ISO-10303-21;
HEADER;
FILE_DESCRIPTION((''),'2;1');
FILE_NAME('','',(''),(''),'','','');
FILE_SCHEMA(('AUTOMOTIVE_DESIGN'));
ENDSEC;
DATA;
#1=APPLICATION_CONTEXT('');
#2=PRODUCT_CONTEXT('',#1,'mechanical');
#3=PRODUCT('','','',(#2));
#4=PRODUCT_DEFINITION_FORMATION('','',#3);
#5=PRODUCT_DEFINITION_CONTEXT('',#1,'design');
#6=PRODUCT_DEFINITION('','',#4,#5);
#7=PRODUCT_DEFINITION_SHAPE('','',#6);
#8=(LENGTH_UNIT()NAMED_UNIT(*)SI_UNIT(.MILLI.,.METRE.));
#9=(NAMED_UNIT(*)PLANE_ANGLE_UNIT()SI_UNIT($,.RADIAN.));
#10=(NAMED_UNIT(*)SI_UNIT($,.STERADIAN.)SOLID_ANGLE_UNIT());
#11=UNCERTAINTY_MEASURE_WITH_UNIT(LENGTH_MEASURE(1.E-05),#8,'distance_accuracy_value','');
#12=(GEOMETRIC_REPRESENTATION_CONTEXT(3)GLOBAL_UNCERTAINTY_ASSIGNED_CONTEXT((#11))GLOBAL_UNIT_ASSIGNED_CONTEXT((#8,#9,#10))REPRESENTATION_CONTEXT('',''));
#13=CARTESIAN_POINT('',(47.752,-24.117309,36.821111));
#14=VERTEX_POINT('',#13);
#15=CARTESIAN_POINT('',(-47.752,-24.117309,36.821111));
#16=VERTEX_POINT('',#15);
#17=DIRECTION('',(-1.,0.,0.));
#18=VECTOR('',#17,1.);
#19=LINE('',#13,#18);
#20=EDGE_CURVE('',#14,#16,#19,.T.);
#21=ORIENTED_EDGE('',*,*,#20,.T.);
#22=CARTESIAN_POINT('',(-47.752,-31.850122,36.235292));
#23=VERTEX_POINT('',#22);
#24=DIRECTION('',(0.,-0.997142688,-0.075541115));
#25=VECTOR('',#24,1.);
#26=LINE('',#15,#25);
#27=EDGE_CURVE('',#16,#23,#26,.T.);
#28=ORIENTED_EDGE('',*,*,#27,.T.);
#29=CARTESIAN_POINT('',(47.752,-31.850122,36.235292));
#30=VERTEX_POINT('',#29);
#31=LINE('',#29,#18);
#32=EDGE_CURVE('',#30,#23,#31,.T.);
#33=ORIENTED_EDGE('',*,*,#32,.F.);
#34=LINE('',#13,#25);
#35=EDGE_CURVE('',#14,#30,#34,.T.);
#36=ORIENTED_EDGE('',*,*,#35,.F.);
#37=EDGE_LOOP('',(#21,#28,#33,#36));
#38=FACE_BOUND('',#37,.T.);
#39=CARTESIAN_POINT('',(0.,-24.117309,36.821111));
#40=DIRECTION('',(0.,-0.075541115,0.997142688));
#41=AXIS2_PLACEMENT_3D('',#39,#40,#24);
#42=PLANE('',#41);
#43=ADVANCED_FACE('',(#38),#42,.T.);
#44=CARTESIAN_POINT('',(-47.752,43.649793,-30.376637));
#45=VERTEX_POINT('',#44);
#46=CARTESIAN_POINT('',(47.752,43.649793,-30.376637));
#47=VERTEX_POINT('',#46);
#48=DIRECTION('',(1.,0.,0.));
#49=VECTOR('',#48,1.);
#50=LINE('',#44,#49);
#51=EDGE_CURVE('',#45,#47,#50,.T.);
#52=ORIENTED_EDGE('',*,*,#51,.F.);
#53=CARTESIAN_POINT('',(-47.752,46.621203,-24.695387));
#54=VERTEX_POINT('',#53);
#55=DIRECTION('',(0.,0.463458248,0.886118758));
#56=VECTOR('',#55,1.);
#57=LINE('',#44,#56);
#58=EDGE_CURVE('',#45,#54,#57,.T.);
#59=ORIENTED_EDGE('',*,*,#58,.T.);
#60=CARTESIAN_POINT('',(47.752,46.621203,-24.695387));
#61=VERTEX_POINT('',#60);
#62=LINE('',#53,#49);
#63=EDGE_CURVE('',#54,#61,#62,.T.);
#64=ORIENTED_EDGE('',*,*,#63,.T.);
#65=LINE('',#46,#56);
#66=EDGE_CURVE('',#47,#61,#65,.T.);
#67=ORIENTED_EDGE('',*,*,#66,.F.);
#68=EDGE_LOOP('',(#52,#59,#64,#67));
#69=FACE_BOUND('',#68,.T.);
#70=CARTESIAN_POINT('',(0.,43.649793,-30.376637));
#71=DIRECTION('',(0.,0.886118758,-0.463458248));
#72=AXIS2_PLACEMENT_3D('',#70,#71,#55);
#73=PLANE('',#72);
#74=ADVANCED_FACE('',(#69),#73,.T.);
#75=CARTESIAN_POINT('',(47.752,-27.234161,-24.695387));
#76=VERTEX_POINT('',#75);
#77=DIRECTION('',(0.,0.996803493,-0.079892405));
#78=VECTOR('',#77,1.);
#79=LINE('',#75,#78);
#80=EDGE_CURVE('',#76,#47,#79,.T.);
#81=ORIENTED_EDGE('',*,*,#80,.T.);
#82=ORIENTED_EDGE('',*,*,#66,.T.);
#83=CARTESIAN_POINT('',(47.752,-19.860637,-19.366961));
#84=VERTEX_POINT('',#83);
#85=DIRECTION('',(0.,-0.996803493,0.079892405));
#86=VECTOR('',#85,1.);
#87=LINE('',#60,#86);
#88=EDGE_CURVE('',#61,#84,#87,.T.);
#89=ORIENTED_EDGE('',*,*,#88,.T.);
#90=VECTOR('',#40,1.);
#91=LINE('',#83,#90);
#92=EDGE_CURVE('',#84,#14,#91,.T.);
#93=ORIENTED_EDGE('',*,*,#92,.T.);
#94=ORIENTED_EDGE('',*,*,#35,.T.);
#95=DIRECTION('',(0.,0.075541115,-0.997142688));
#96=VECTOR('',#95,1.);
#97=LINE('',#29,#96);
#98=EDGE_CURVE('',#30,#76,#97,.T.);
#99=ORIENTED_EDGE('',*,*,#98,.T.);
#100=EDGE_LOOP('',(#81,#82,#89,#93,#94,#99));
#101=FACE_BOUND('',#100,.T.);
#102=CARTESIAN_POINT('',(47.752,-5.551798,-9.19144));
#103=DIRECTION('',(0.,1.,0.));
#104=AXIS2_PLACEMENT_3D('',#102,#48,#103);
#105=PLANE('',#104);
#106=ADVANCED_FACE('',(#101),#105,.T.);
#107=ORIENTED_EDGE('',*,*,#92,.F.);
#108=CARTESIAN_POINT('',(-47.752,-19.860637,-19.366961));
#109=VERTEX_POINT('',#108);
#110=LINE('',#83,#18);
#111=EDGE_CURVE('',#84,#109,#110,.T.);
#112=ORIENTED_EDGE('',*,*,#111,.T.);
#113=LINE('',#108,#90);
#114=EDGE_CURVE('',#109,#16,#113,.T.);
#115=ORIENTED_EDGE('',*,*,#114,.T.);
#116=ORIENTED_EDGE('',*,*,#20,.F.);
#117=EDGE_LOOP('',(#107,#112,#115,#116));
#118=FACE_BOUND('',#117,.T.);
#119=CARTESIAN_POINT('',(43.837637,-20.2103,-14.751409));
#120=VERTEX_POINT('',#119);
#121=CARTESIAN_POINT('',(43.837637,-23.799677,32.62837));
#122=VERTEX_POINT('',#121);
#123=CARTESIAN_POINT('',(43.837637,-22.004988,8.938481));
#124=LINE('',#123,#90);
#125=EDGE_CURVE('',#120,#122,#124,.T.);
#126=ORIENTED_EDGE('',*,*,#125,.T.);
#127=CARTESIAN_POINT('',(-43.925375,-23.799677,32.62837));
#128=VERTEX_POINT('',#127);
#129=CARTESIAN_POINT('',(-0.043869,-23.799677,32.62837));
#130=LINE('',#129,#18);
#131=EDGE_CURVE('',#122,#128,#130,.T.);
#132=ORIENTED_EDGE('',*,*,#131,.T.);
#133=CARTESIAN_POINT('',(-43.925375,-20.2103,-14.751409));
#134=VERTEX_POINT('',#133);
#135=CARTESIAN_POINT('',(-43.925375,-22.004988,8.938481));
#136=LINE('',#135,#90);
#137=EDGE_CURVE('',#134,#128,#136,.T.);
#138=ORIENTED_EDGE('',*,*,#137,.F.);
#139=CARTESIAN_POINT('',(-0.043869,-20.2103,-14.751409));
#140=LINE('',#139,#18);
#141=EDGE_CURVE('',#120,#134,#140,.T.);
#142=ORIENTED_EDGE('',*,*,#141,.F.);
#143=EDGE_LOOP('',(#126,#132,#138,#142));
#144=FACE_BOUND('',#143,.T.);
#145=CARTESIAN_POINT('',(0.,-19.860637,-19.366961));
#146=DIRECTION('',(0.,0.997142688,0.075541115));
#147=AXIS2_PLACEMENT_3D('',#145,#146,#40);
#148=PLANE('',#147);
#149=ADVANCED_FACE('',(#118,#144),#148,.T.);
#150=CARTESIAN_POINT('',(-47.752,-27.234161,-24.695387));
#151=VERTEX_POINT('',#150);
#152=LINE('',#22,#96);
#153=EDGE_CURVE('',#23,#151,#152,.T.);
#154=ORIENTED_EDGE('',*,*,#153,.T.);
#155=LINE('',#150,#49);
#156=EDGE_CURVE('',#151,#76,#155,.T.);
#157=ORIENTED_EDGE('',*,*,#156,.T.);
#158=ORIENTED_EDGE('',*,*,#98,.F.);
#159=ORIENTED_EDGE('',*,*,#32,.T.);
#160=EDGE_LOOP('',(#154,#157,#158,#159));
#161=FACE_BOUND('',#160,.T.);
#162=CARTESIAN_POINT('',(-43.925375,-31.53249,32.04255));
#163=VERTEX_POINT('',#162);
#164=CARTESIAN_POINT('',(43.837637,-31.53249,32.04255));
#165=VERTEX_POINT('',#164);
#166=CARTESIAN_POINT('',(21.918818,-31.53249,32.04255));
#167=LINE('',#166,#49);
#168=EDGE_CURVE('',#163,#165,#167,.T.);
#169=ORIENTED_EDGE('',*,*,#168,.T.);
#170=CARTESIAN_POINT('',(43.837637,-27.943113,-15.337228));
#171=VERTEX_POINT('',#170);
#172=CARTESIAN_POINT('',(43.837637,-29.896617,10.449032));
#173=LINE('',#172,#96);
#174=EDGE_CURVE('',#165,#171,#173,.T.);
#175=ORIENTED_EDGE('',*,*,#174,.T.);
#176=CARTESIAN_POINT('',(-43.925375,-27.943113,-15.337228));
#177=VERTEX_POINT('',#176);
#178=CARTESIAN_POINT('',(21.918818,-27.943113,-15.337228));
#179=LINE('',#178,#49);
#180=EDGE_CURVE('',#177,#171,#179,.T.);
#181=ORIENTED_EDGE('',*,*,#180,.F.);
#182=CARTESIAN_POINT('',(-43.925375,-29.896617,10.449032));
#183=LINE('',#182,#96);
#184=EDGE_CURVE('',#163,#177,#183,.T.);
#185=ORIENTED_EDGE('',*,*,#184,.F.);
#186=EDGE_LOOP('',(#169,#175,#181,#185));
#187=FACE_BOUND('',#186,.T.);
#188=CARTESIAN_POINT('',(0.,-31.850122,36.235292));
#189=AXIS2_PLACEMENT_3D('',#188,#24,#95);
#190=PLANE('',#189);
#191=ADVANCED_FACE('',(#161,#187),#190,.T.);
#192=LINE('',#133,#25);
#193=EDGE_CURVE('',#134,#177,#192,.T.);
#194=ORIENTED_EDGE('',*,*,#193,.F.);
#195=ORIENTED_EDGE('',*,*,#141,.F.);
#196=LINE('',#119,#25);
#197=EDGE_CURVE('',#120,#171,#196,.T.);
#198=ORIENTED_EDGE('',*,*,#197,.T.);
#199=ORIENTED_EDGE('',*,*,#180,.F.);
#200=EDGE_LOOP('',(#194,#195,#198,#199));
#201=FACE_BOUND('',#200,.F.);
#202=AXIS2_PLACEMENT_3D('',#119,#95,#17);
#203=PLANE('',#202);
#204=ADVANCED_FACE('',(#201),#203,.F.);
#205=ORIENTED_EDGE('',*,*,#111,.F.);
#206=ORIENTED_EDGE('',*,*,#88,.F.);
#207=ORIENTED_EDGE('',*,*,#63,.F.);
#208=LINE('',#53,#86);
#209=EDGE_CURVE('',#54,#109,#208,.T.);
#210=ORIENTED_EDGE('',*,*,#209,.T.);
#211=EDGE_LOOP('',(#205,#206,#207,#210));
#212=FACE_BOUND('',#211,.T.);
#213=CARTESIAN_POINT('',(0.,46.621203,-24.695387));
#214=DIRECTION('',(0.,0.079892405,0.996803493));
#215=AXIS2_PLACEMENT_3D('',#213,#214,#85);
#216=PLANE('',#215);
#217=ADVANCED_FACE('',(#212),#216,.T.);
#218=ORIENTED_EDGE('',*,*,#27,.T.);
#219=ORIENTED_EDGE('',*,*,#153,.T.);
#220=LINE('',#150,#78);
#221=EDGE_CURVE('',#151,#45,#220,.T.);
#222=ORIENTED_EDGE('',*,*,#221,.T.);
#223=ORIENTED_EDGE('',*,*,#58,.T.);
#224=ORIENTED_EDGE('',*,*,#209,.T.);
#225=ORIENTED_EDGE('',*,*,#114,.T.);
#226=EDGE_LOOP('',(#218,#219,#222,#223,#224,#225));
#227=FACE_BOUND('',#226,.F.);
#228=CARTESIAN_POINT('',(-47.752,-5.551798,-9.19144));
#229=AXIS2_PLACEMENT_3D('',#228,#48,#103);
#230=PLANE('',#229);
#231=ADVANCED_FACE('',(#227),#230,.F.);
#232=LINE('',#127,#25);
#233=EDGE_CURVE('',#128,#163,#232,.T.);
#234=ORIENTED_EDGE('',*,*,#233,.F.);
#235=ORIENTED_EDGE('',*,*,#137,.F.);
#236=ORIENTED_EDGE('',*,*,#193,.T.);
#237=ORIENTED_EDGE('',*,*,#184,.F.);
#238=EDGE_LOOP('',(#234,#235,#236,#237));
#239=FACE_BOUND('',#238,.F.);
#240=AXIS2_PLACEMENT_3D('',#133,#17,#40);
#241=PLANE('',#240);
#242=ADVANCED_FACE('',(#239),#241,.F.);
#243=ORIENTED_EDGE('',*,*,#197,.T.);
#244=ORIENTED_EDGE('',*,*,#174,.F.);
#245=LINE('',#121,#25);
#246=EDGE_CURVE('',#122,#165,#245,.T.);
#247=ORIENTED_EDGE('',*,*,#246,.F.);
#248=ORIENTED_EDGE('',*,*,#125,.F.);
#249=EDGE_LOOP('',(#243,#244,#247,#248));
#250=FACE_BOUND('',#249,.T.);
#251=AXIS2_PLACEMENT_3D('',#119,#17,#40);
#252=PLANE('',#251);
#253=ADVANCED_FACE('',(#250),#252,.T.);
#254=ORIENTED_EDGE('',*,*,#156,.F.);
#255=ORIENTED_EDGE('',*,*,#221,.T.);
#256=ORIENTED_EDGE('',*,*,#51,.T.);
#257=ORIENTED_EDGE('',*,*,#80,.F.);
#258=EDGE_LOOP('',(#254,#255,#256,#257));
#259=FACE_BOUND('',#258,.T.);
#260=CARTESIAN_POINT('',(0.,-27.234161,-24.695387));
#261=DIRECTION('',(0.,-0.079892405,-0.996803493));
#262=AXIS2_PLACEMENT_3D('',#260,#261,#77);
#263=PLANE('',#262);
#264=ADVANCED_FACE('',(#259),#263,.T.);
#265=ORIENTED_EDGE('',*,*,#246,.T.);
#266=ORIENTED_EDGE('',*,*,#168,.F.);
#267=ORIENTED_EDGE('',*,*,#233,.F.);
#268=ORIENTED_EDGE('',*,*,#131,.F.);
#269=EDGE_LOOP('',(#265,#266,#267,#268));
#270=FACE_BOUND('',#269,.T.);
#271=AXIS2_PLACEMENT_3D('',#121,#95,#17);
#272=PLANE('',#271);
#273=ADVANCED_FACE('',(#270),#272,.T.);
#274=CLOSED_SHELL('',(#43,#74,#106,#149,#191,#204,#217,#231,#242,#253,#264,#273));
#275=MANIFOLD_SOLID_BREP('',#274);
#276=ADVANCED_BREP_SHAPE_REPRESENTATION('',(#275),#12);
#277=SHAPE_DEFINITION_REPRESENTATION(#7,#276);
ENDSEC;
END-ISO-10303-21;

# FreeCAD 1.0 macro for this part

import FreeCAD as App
import Part
import Sketcher

V = App.Vector
Q = App.Units.Quantity


def add_polygon(sketch, points):
    """Adds a closed chain of lines whose ends are joined by coincident constraints."""
    first, n = sketch.GeometryCount, len(points)
    for a, b in zip(points, points[1:] + points[:1]):
        sketch.addGeometry(Part.LineSegment(App.Vector(*a, 0), App.Vector(*b, 0)), False)
    for i in range(n):
        sketch.addConstraint(Sketcher.Constraint("Coincident", first + i, 2, first + (i + 1) % n, 1))

doc = App.newDocument("Part")
body = doc.addObject("PartDesign::Body", "Body")

sketch1 = body.newObject("Sketcher::SketchObject", "Sketch")
sketch1.AttachmentSupport = (doc.getObject("YZ_Plane"), [""])
sketch1.MapMode = "FlatFace"
add_polygon(sketch1, [(-31.850122, 36.235292), (-27.234161, -24.695387), (43.649793, -30.376637), (46.621203, -24.695387), (-19.860637, -19.366961), (-24.117309, 36.821111)])
sketch1.addConstraint([
    Sketcher.Constraint("Distance", 3, 66.695031),
    Sketcher.Constraint("Distance", 4, 56.349078),
    Sketcher.Constraint("Distance", 5, 7.754971),
    Sketcher.Constraint("DistanceX", 0, 2, -1, 1, 27.234161),
    Sketcher.Constraint("DistanceY", 3, 2, -1, 1, 19.366961),
    Sketcher.Constraint("DistanceX", 4, 2, -1, 1, 24.117309),
    Sketcher.Constraint("DistanceY", -1, 1, 4, 2, 36.821111),
    Sketcher.Constraint("DistanceX", 5, 2, -1, 1, 31.850122),
    Sketcher.Constraint("DistanceY", 1, 2, 0, 2, 5.68125),
    Sketcher.Constraint("DistanceX", 1, 2, 2, 2, 2.97141),
    Sketcher.Constraint("DistanceY", 1, 2, 2, 2, 5.68125),
    Sketcher.Constraint("DistanceX", 3, 2, 1, 2, 63.51043),
])
pad1 = body.newObject("PartDesign::Pad", "Pad")
pad1.Profile = sketch1
pad1.Length = Q("3.76 in")
pad1.Midplane = True

sketch2 = body.newObject("Sketcher::SketchObject", "Sketch001")
sketch2.Placement = App.Placement(V(0, -21.206124, -1.606525), App.Rotation(V(-1, 0, 0), V(0, -0.075541115, 0.997142688), V(0, 0.997142688, 0.075541115), "ZXY"))
add_polygon(sketch2, [(-44, 34), (-44, -13), (44, -13), (44, 34)])
sketch2.addConstraint([
    Sketcher.Constraint("Vertical", 0),
    Sketcher.Constraint("Horizontal", 1),
    Sketcher.Constraint("Vertical", 2),
    Sketcher.Constraint("Horizontal", 3),
    Sketcher.Constraint("DistanceX", 1, 1, 1, 2, 87.763011),
    Sketcher.Constraint("DistanceY", 0, 2, 0, 1, 47.515545),
    Sketcher.Constraint("DistanceY", 0, 2, -1, 1, 13.182551),
    Sketcher.Constraint("DistanceX", 0, 2, -1, 1, 43.837637),
])
pocket1 = body.newObject("PartDesign::Pocket", "Pocket")
pocket1.Profile = sketch2
pocket1.Length = Q("1.26 in")

doc.recompute()
